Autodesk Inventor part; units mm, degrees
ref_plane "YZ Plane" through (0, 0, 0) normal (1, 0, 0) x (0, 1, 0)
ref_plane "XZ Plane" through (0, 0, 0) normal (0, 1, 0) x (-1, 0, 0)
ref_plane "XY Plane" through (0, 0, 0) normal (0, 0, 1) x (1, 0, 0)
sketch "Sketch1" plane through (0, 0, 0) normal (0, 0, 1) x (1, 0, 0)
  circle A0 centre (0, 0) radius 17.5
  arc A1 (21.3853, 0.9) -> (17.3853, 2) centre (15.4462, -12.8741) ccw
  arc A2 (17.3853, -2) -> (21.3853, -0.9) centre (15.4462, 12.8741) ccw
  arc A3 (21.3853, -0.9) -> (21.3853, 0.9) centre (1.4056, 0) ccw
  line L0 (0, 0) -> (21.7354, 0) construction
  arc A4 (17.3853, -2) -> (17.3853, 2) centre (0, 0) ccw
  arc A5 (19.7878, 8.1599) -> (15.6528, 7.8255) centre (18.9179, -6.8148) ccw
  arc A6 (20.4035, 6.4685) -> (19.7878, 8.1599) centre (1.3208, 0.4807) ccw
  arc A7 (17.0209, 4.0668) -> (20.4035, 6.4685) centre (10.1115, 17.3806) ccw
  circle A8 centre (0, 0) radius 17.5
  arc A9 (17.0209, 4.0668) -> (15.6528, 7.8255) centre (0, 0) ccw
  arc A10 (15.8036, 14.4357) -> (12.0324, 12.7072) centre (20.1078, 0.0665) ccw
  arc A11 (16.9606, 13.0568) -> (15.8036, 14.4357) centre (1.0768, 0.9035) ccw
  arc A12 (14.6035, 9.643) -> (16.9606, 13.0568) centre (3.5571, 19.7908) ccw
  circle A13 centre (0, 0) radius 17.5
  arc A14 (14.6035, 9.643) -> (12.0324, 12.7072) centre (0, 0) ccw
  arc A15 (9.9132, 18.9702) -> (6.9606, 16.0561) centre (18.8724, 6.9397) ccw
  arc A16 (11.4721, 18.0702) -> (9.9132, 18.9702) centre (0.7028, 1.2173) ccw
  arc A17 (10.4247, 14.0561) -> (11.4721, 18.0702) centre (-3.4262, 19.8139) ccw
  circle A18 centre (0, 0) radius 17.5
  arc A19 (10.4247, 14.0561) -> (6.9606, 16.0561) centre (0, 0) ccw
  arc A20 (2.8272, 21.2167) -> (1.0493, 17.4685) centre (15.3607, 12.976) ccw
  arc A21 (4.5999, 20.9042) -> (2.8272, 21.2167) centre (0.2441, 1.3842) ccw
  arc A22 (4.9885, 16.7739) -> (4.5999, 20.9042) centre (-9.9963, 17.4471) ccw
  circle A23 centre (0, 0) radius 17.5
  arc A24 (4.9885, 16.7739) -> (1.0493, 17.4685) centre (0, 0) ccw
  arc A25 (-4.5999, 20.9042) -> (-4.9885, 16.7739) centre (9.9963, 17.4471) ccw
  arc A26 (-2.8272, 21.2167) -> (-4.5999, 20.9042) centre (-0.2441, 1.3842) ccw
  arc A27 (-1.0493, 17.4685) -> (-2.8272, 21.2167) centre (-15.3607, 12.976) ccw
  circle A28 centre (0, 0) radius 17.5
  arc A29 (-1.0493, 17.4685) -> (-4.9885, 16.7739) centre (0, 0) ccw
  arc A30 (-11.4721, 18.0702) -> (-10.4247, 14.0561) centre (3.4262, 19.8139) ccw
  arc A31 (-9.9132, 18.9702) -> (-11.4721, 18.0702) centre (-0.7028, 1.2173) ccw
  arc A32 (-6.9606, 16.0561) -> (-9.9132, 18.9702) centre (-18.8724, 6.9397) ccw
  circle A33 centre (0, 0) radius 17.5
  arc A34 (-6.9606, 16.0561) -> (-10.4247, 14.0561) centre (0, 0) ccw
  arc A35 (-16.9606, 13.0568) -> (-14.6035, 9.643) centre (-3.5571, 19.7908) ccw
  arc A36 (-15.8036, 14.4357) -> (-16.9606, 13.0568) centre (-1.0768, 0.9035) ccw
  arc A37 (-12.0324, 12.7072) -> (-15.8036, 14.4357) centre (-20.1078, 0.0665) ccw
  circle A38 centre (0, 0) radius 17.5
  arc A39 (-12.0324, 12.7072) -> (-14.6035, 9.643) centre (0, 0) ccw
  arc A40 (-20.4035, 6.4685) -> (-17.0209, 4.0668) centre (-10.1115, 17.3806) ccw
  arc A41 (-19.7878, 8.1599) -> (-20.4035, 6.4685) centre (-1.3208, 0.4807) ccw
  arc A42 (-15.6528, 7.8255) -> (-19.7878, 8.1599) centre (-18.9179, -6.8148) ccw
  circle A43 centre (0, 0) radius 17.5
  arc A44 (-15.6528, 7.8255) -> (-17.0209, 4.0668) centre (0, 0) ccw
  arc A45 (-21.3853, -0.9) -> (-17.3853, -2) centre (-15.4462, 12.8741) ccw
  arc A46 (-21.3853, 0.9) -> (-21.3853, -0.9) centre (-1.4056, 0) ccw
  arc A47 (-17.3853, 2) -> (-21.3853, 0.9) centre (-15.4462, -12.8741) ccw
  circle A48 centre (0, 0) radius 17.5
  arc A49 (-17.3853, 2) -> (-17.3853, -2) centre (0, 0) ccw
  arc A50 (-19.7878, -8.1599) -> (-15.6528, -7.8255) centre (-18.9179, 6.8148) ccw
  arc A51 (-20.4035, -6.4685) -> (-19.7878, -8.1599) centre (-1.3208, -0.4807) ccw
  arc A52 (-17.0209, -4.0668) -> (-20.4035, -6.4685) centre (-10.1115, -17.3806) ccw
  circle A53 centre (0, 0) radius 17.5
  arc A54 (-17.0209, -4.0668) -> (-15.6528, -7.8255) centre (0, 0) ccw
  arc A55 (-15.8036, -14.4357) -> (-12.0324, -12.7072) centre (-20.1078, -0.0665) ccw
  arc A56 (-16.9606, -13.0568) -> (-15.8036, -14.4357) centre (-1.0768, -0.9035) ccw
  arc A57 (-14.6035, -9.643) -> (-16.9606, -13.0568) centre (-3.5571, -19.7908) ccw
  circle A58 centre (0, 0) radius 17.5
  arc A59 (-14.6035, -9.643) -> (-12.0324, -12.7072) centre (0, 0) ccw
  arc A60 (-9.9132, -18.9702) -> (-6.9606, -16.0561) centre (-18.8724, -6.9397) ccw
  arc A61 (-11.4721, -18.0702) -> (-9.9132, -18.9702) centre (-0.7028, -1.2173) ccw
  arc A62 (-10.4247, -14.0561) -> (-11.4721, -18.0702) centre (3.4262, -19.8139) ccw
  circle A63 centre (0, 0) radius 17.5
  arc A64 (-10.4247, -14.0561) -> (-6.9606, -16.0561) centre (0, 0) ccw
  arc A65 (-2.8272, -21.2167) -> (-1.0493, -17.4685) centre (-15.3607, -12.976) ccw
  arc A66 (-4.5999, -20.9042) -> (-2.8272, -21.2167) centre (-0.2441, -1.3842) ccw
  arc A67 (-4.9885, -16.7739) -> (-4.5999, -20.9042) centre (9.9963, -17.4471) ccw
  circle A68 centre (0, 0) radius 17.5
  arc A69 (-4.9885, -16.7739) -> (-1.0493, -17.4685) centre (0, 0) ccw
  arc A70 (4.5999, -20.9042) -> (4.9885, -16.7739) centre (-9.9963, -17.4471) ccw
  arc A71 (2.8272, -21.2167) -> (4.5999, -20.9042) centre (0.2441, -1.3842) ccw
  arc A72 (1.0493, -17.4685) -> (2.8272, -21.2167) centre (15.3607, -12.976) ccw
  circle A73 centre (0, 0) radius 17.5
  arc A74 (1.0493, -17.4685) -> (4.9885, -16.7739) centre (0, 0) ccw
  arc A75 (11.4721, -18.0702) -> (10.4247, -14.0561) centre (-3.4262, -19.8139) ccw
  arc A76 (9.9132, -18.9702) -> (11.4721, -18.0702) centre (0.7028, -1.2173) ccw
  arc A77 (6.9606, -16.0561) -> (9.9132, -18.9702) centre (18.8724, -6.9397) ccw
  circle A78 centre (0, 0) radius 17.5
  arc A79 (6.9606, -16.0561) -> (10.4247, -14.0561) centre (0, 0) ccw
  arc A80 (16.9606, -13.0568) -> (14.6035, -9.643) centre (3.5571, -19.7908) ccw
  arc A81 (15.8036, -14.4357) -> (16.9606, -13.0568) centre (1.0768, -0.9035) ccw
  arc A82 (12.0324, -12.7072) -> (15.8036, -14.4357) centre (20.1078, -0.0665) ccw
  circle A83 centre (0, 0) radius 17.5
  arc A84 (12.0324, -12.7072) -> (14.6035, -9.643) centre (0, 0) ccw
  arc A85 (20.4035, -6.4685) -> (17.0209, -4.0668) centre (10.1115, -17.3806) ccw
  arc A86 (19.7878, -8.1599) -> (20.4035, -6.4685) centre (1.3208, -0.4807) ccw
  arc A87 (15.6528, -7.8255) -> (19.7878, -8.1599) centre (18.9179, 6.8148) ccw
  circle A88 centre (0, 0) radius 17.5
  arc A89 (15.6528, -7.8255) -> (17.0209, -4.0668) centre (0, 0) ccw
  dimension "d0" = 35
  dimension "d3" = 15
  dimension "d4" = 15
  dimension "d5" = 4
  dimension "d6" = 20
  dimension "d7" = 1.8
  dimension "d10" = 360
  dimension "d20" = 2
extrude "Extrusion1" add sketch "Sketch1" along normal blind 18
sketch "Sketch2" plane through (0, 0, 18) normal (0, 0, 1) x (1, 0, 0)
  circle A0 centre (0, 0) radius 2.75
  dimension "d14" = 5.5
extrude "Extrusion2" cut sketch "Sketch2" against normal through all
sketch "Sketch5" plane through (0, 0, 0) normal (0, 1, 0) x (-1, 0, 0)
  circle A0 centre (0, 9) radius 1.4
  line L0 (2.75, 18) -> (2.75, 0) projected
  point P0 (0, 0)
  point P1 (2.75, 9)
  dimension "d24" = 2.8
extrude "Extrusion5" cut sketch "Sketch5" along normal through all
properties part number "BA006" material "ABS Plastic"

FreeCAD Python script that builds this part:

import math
import FreeCAD as App
import Part
import Sketcher

V = App.Vector
Q = App.Units.Quantity

doc = App.newDocument("Part")
body = doc.addObject("PartDesign::Body", "Body")

# Sketch on XY plane
sketch1 = doc.addObject("Sketcher::SketchObject", "Sketch")
body.addObject(sketch1)
sketch1.AttachmentSupport = (doc.XY_Plane, [""])
sketch1.MapMode = "FlatFace"
sketch1.addGeometry([
    Part.ArcOfCircle(Part.Circle(V(0, 0, 0), V(0, 0, 1), 17.5), math.radians(-13.43774), math.radians(-6.562442)),  # 0
    Part.ArcOfCircle(Part.Circle(V(15.4462, 12.8741, 0), V(0, 0, 1), 14.999965), math.radians(-82.57238), math.radians(-66.675318)),  # 1
    Part.ArcOfCircle(Part.Circle(V(1.4056, 0, 0), V(0, 0, 1), 19.99996), math.radians(-2.579186), math.radians(2.579186)),  # 2
    Part.ArcOfCircle(Part.Circle(V(15.4462, -12.8741, 0), V(0, 0, 1), 14.999958), math.radians(66.675318), math.radians(82.57238)),  # 3
    Part.ArcOfCircle(Part.Circle(V(0, 0, 0), V(0, 0, 1), 17.5), math.radians(6.562442), math.radians(13.43774)),  # 4
    Part.ArcOfCircle(Part.Circle(V(10.109586, 17.383735, 0), V(0, 0, 1), 15.003567), math.radians(-62.571282), math.radians(-46.677998)),  # 5
    Part.ArcOfCircle(Part.Circle(V(1.35565, 0.492503, 0), V(0, 0, 1), 19.963295), math.radians(17.418521), math.radians(22.58631)),  # 6
    Part.ArcOfCircle(Part.Circle(V(18.917918, -6.816358, 0), V(0, 0, 1), 15.0015), math.radians(86.675762), math.radians(102.571205)),  # 7
    Part.ArcOfCircle(Part.Circle(V(0, 0, 0), V(0, 0, 1), 17.5), math.radians(26.562416), math.radians(33.437627)),  # 8
    Part.ArcOfCircle(Part.Circle(V(3.5571, 19.7908, 0), V(0, 0, 1), 15.000027), math.radians(-42.572205), math.radians(-26.675232)),  # 9
    Part.ArcOfCircle(Part.Circle(V(1.064542, 0.893676, 0), V(0, 0, 1), 20.01565), math.radians(37.42199), math.radians(42.576328)),  # 10
    Part.ArcOfCircle(Part.Circle(V(20.107392, 0.067581, 0), V(0, 0, 1), 14.998849), math.radians(106.674938), math.radians(122.573029)),  # 11
    Part.ArcOfCircle(Part.Circle(V(0, 0, 0), V(0, 0, 1), 17.5), math.radians(46.562418), math.radians(53.437537)),  # 12
    Part.ArcOfCircle(Part.Circle(V(-3.4262, 19.8139, 0), V(0, 0, 1), 14.99999), math.radians(-22.572589), math.radians(-6.675539)),  # 13
    Part.ArcOfCircle(Part.Circle(V(0.710066, 1.229255, 0), V(0, 0, 1), 19.985965), math.radians(57.419803), math.radians(62.581925)),  # 14
    Part.ArcOfCircle(Part.Circle(V(18.8724, 6.9397, 0), V(0, 0, 1), 15.000006), math.radians(126.675321), math.radians(142.572261)),  # 15
    Part.ArcOfCircle(Part.Circle(V(0, 0, 0), V(0, 0, 1), 17.5), math.radians(66.562425), math.radians(73.437704)),  # 16
    Part.ArcOfCircle(Part.Circle(V(-10.001805, 17.446965, 0), V(0, 0, 1), 15.005408), math.radians(-2.570856), math.radians(13.320579)),  # 17
    Part.ArcOfCircle(Part.Circle(V(0.251171, 1.41962, 0), V(0, 0, 1), 19.963975), math.radians(77.418459), math.radians(82.586233)),  # 18
    Part.ArcOfCircle(Part.Circle(V(15.362167, 12.975175, 0), V(0, 0, 1), 15.001604), math.radians(146.675769), math.radians(162.571047)),  # 19
    Part.ArcOfCircle(Part.Circle(V(0, 0, 0), V(0, 0, 1), 17.5), math.radians(86.562481), math.radians(93.437519)),  # 20
    Part.ArcOfCircle(Part.Circle(V(-15.359134, 12.976614, 0), V(0, 0, 1), 14.998279), math.radians(17.42718), math.radians(33.326004)),  # 21
    Part.ArcOfCircle(Part.Circle(V(-0.23861, 1.348368, 0), V(0, 0, 1), 20.036252), math.radians(97.423094), math.radians(102.572214)),  # 22
    Part.ArcOfCircle(Part.Circle(V(9.99087, 17.447994, 0), V(0, 0, 1), 14.99453), math.radians(166.67362), math.radians(182.576657)),  # 23
    Part.ArcOfCircle(Part.Circle(V(0, 0, 0), V(0, 0, 1), 17.5), math.radians(106.562296), math.radians(113.437575)),  # 24
    Part.ArcOfCircle(Part.Circle(V(-18.8724, 6.9397, 0), V(0, 0, 1), 14.999991), math.radians(37.427739), math.radians(53.324679)),  # 25
    Part.ArcOfCircle(Part.Circle(V(-0.69607, 1.205013, 0), V(0, 0, 1), 20.013929), math.radians(117.421684), math.radians(122.576588)),  # 26
    Part.ArcOfCircle(Part.Circle(V(3.4262, 19.8139, 0), V(0, 0, 1), 14.999994), math.radians(-173.324461), math.radians(-157.427411)),  # 27
    Part.ArcOfCircle(Part.Circle(V(0, 0, 0), V(0, 0, 1), 17.5), math.radians(126.562463), math.radians(133.437582)),  # 28
    Part.ArcOfCircle(Part.Circle(V(-20.108353, 0.065485, 0), V(0, 0, 1), 15.001132), math.radians(57.428189), math.radians(73.323844)),  # 29
    Part.ArcOfCircle(Part.Circle(V(-1.088585, 0.91385, 0), V(0, 0, 1), 19.984297), math.radians(137.419626), math.radians(142.582056)),  # 30
    Part.ArcOfCircle(Part.Circle(V(-3.5571, 19.7908, 0), V(0, 0, 1), 15.000019), math.radians(-153.324768), math.radians(-137.427795)),  # 31
    Part.ArcOfCircle(Part.Circle(V(0, 0, 0), V(0, 0, 1), 17.5), math.radians(146.562373), math.radians(153.437584)),  # 32
    Part.ArcOfCircle(Part.Circle(V(-18.917667, -6.81326, 0), V(0, 0, 1), 14.998421), math.radians(77.427153), math.radians(93.32588)),  # 33
    Part.ArcOfCircle(Part.Circle(V(-1.28639, 0.467291, 0), V(0, 0, 1), 20.036926), math.radians(157.423192), math.radians(162.571978)),  # 34
    Part.ArcOfCircle(Part.Circle(V(-10.113828, 17.377761, 0), V(0, 0, 1), 14.996311), math.radians(-133.325872), math.radians(-117.424848)),  # 35
    Part.ArcOfCircle(Part.Circle(V(0, 0, 0), V(0, 0, 1), 17.5), math.radians(166.56226), math.radians(173.437558)),  # 36
    Part.ArcOfCircle(Part.Circle(V(-15.4462, -12.8741, 0), V(0, 0, 1), 14.999965), math.radians(97.42762), math.radians(113.324682)),  # 37
    Part.ArcOfCircle(Part.Circle(V(-1.4056, 0, 0), V(0, 0, 1), 19.99996), math.radians(177.420814), math.radians(182.579186)),  # 38
    Part.ArcOfCircle(Part.Circle(V(-15.4462, 12.8741, 0), V(0, 0, 1), 14.999958), math.radians(-113.324682), math.radians(-97.42762)),  # 39
    Part.ArcOfCircle(Part.Circle(V(0, 0, 0), V(0, 0, 1), 17.5), math.radians(-173.437558), math.radians(-166.56226)),  # 40
    Part.ArcOfCircle(Part.Circle(V(-10.109586, -17.383735, 0), V(0, 0, 1), 15.003567), math.radians(117.428718), math.radians(133.322002)),  # 41
    Part.ArcOfCircle(Part.Circle(V(-1.35565, -0.492503, 0), V(0, 0, 1), 19.963295), math.radians(-162.581479), math.radians(-157.41369)),  # 42
    Part.ArcOfCircle(Part.Circle(V(-18.917918, 6.816358, 0), V(0, 0, 1), 15.0015), math.radians(-93.324238), math.radians(-77.428795)),  # 43
    Part.ArcOfCircle(Part.Circle(V(0, 0, 0), V(0, 0, 1), 17.5), math.radians(-153.437584), math.radians(-146.562373)),  # 44
    Part.ArcOfCircle(Part.Circle(V(-3.5571, -19.7908, 0), V(0, 0, 1), 15.000027), math.radians(137.427795), math.radians(153.324768)),  # 45
    Part.ArcOfCircle(Part.Circle(V(-1.064542, -0.893676, 0), V(0, 0, 1), 20.01565), math.radians(-142.57801), math.radians(-137.423672)),  # 46
    Part.ArcOfCircle(Part.Circle(V(-20.107392, -0.067581, 0), V(0, 0, 1), 14.998849), math.radians(-73.325062), math.radians(-57.426971)),  # 47
    Part.ArcOfCircle(Part.Circle(V(0, 0, 0), V(0, 0, 1), 17.5), math.radians(-133.437582), math.radians(-126.562463)),  # 48
    Part.ArcOfCircle(Part.Circle(V(3.4262, -19.8139, 0), V(0, 0, 1), 14.99999), math.radians(157.427411), math.radians(173.324461)),  # 49
    Part.ArcOfCircle(Part.Circle(V(-0.710066, -1.229255, 0), V(0, 0, 1), 19.985965), math.radians(-122.580197), math.radians(-117.418075)),  # 50
    Part.ArcOfCircle(Part.Circle(V(-18.8724, -6.9397, 0), V(0, 0, 1), 15.000006), math.radians(-53.324679), math.radians(-37.427739)),  # 51
    Part.ArcOfCircle(Part.Circle(V(0, 0, 0), V(0, 0, 1), 17.5), math.radians(-113.437575), math.radians(-106.562296)),  # 52
    Part.ArcOfCircle(Part.Circle(V(10.001805, -17.446965, 0), V(0, 0, 1), 15.005408), math.radians(177.429144), math.radians(193.320579)),  # 53
    Part.ArcOfCircle(Part.Circle(V(-0.251171, -1.41962, 0), V(0, 0, 1), 19.963975), math.radians(-102.581541), math.radians(-97.413767)),  # 54
    Part.ArcOfCircle(Part.Circle(V(-15.362167, -12.975175, 0), V(0, 0, 1), 15.001604), math.radians(-33.324231), math.radians(-17.428953)),  # 55
    Part.ArcOfCircle(Part.Circle(V(0, 0, 0), V(0, 0, 1), 17.5), math.radians(-93.437519), math.radians(-86.562481)),  # 56
    Part.ArcOfCircle(Part.Circle(V(15.359134, -12.976614, 0), V(0, 0, 1), 14.998279), math.radians(-162.57282), math.radians(-146.673996)),  # 57
    Part.ArcOfCircle(Part.Circle(V(0.23861, -1.348368, 0), V(0, 0, 1), 20.036252), math.radians(-82.576906), math.radians(-77.427786)),  # 58
    Part.ArcOfCircle(Part.Circle(V(-9.99087, -17.447994, 0), V(0, 0, 1), 14.99453), math.radians(-13.32638), math.radians(2.576657)),  # 59
    Part.ArcOfCircle(Part.Circle(V(0, 0, 0), V(0, 0, 1), 17.5), math.radians(-73.437704), math.radians(-66.562425)),  # 60
    Part.ArcOfCircle(Part.Circle(V(18.8724, -6.9397, 0), V(0, 0, 1), 14.999991), math.radians(-142.572261), math.radians(-126.675321)),  # 61
    Part.ArcOfCircle(Part.Circle(V(0.69607, -1.205013, 0), V(0, 0, 1), 20.013929), math.radians(-62.578316), math.radians(-57.423412)),  # 62
    Part.ArcOfCircle(Part.Circle(V(-3.4262, -19.8139, 0), V(0, 0, 1), 14.999994), math.radians(6.675539), math.radians(22.572589)),  # 63
    Part.ArcOfCircle(Part.Circle(V(0, 0, 0), V(0, 0, 1), 17.5), math.radians(-53.437537), math.radians(-46.562418)),  # 64
    Part.ArcOfCircle(Part.Circle(V(20.108353, -0.065485, 0), V(0, 0, 1), 15.001132), math.radians(-122.571811), math.radians(-106.676156)),  # 65
    Part.ArcOfCircle(Part.Circle(V(1.088585, -0.91385, 0), V(0, 0, 1), 19.984297), math.radians(-42.580374), math.radians(-37.417944)),  # 66
    Part.ArcOfCircle(Part.Circle(V(3.5571, -19.7908, 0), V(0, 0, 1), 15.000019), math.radians(26.675232), math.radians(42.572205)),  # 67
    Part.ArcOfCircle(Part.Circle(V(0, 0, 0), V(0, 0, 1), 17.5), math.radians(-33.437627), math.radians(-26.562416)),  # 68
    Part.ArcOfCircle(Part.Circle(V(18.917667, 6.81326, 0), V(0, 0, 1), 14.998421), math.radians(-102.572847), math.radians(-86.67412)),  # 69
    Part.ArcOfCircle(Part.Circle(V(1.28639, -0.467291, 0), V(0, 0, 1), 20.036926), math.radians(-22.576808), math.radians(-17.428022)),  # 70
    Part.ArcOfCircle(Part.Circle(V(10.113828, -17.377761, 0), V(0, 0, 1), 14.996311), math.radians(46.674128), math.radians(62.575152)),  # 71
], False)
sketch1.addConstraint([
    Sketcher.Constraint("Coincident", 0, 2, 1, 1),
    Sketcher.Constraint("Coincident", 1, 2, 2, 1),
    Sketcher.Constraint("Coincident", 2, 2, 3, 1),
    Sketcher.Constraint("Coincident", 3, 2, 4, 1),
    Sketcher.Constraint("Coincident", 4, 2, 5, 1),
    Sketcher.Constraint("Coincident", 5, 2, 6, 1),
    Sketcher.Constraint("Coincident", 6, 2, 7, 1),
    Sketcher.Constraint("Coincident", 7, 2, 8, 1),
    Sketcher.Constraint("Coincident", 8, 2, 9, 1),
    Sketcher.Constraint("Coincident", 9, 2, 10, 1),
    Sketcher.Constraint("Coincident", 10, 2, 11, 1),
    Sketcher.Constraint("Coincident", 11, 2, 12, 1),
    Sketcher.Constraint("Coincident", 12, 2, 13, 1),
    Sketcher.Constraint("Coincident", 13, 2, 14, 1),
    Sketcher.Constraint("Coincident", 14, 2, 15, 1),
    Sketcher.Constraint("Coincident", 15, 2, 16, 1),
    Sketcher.Constraint("Coincident", 16, 2, 17, 1),
    Sketcher.Constraint("Coincident", 17, 2, 18, 1),
    Sketcher.Constraint("Coincident", 18, 2, 19, 1),
    Sketcher.Constraint("Coincident", 19, 2, 20, 1),
    Sketcher.Constraint("Coincident", 20, 2, 21, 1),
    Sketcher.Constraint("Coincident", 21, 2, 22, 1),
    Sketcher.Constraint("Coincident", 22, 2, 23, 1),
    Sketcher.Constraint("Coincident", 23, 2, 24, 1),
    Sketcher.Constraint("Coincident", 24, 2, 25, 1),
    Sketcher.Constraint("Coincident", 25, 2, 26, 1),
    Sketcher.Constraint("Coincident", 26, 2, 27, 1),
    Sketcher.Constraint("Coincident", 27, 2, 28, 1),
    Sketcher.Constraint("Coincident", 28, 2, 29, 1),
    Sketcher.Constraint("Coincident", 29, 2, 30, 1),
    Sketcher.Constraint("Coincident", 30, 2, 31, 1),
    Sketcher.Constraint("Coincident", 31, 2, 32, 1),
    Sketcher.Constraint("Coincident", 32, 2, 33, 1),
    Sketcher.Constraint("Coincident", 33, 2, 34, 1),
    Sketcher.Constraint("Coincident", 34, 2, 35, 1),
    Sketcher.Constraint("Coincident", 35, 2, 36, 1),
    Sketcher.Constraint("Coincident", 36, 2, 37, 1),
    Sketcher.Constraint("Coincident", 37, 2, 38, 1),
    Sketcher.Constraint("Coincident", 38, 2, 39, 1),
    Sketcher.Constraint("Coincident", 39, 2, 40, 1),
    Sketcher.Constraint("Coincident", 40, 2, 41, 1),
    Sketcher.Constraint("Coincident", 41, 2, 42, 1),
    Sketcher.Constraint("Coincident", 42, 2, 43, 1),
    Sketcher.Constraint("Coincident", 43, 2, 44, 1),
    Sketcher.Constraint("Coincident", 44, 2, 45, 1),
    Sketcher.Constraint("Coincident", 45, 2, 46, 1),
    Sketcher.Constraint("Coincident", 46, 2, 47, 1),
    Sketcher.Constraint("Coincident", 47, 2, 48, 1),
    Sketcher.Constraint("Coincident", 48, 2, 49, 1),
    Sketcher.Constraint("Coincident", 49, 2, 50, 1),
    Sketcher.Constraint("Coincident", 50, 2, 51, 1),
    Sketcher.Constraint("Coincident", 51, 2, 52, 1),
    Sketcher.Constraint("Coincident", 52, 2, 53, 1),
    Sketcher.Constraint("Coincident", 53, 2, 54, 1),
    Sketcher.Constraint("Coincident", 54, 2, 55, 1),
    Sketcher.Constraint("Coincident", 55, 2, 56, 1),
    Sketcher.Constraint("Coincident", 56, 2, 57, 1),
    Sketcher.Constraint("Coincident", 57, 2, 58, 1),
    Sketcher.Constraint("Coincident", 58, 2, 59, 1),
    Sketcher.Constraint("Coincident", 59, 2, 60, 1),
    Sketcher.Constraint("Coincident", 60, 2, 61, 1),
    Sketcher.Constraint("Coincident", 61, 2, 62, 1),
    Sketcher.Constraint("Coincident", 62, 2, 63, 1),
    Sketcher.Constraint("Coincident", 63, 2, 64, 1),
    Sketcher.Constraint("Coincident", 64, 2, 65, 1),
    Sketcher.Constraint("Coincident", 65, 2, 66, 1),
    Sketcher.Constraint("Coincident", 66, 2, 67, 1),
    Sketcher.Constraint("Coincident", 67, 2, 68, 1),
    Sketcher.Constraint("Coincident", 68, 2, 69, 1),
    Sketcher.Constraint("Coincident", 69, 2, 70, 1),
    Sketcher.Constraint("Coincident", 70, 2, 71, 1),
    Sketcher.Constraint("Coincident", 71, 2, 0, 1),
    Sketcher.Constraint("Coincident", 0, 3, -1, 1),
    Sketcher.Constraint("Coincident", 4, 3, -1, 1),
    Sketcher.Constraint("Coincident", 8, 3, -1, 1),
    Sketcher.Constraint("Coincident", 12, 3, -1, 1),
    Sketcher.Constraint("Coincident", 16, 3, -1, 1),
    Sketcher.Constraint("Coincident", 20, 3, -1, 1),
    Sketcher.Constraint("Coincident", 24, 3, -1, 1),
    Sketcher.Constraint("Coincident", 28, 3, -1, 1),
    Sketcher.Constraint("Coincident", 32, 3, -1, 1),
    Sketcher.Constraint("Coincident", 36, 3, -1, 1),
    Sketcher.Constraint("Coincident", 40, 3, -1, 1),
    Sketcher.Constraint("Coincident", 44, 3, -1, 1),
    Sketcher.Constraint("Coincident", 48, 3, -1, 1),
    Sketcher.Constraint("Coincident", 52, 3, -1, 1),
    Sketcher.Constraint("Coincident", 56, 3, -1, 1),
    Sketcher.Constraint("Coincident", 60, 3, -1, 1),
    Sketcher.Constraint("Coincident", 64, 3, -1, 1),
    Sketcher.Constraint("Coincident", 68, 3, -1, 1),
    Sketcher.Constraint("Equal", 1, 3),
    Sketcher.Constraint("Equal", 0, 4),
    Sketcher.Constraint("Equal", 4, 8),
    Sketcher.Constraint("Equal", 3, 9),
    Sketcher.Constraint("Equal", 8, 12),
    Sketcher.Constraint("Equal", 9, 13),
    Sketcher.Constraint("Equal", 13, 15),
    Sketcher.Constraint("Equal", 12, 16),
    Sketcher.Constraint("Equal", 7, 19),
    Sketcher.Constraint("Equal", 16, 20),
    Sketcher.Constraint("Equal", 20, 24),
    Sketcher.Constraint("Equal", 15, 25),
    Sketcher.Constraint("Equal", 25, 27),
    Sketcher.Constraint("Equal", 24, 28),
    Sketcher.Constraint("Equal", 27, 31),
    Sketcher.Constraint("Equal", 28, 32),
    Sketcher.Constraint("Equal", 21, 33),
    Sketcher.Constraint("Equal", 32, 36),
    Sketcher.Constraint("Equal", 31, 37),
    Sketcher.Constraint("Equal", 2, 38),
    Sketcher.Constraint("Equal", 37, 39),
    Sketcher.Constraint("Equal", 36, 40),
    Sketcher.Constraint("Equal", 5, 41),
    Sketcher.Constraint("Equal", 6, 42),
    Sketcher.Constraint("Equal", 19, 43),
    Sketcher.Constraint("Equal", 40, 44),
    Sketcher.Constraint("Equal", 39, 45),
    Sketcher.Constraint("Equal", 10, 46),
    Sketcher.Constraint("Equal", 11, 47),
    Sketcher.Constraint("Equal", 44, 48),
    Sketcher.Constraint("Equal", 45, 49),
    Sketcher.Constraint("Equal", 14, 50),
    Sketcher.Constraint("Equal", 49, 51),
    Sketcher.Constraint("Equal", 48, 52),
    Sketcher.Constraint("Equal", 17, 53),
    Sketcher.Constraint("Equal", 18, 54),
    Sketcher.Constraint("Equal", 43, 55),
    Sketcher.Constraint("Equal", 52, 56),
    Sketcher.Constraint("Equal", 33, 57),
    Sketcher.Constraint("Equal", 22, 58),
    Sketcher.Constraint("Equal", 23, 59),
    Sketcher.Constraint("Equal", 56, 60),
    Sketcher.Constraint("Equal", 51, 61),
    Sketcher.Constraint("Equal", 26, 62),
    Sketcher.Constraint("Equal", 61, 63),
    Sketcher.Constraint("Equal", 60, 64),
    Sketcher.Constraint("Equal", 29, 65),
    Sketcher.Constraint("Equal", 30, 66),
    Sketcher.Constraint("Equal", 63, 67),
    Sketcher.Constraint("Equal", 64, 68),
    Sketcher.Constraint("Equal", 57, 69),
    Sketcher.Constraint("Equal", 34, 70),
    Sketcher.Constraint("Equal", 35, 71),
    Sketcher.Constraint("Symmetric", 1, 3, 37, 3, -1, 1),
    Sketcher.Constraint("Symmetric", 2, 3, 38, 3, -1, 1),
    Sketcher.Constraint("Symmetric", 3, 3, 39, 3, -1, 1),
    Sketcher.Constraint("Symmetric", 5, 3, 41, 3, -1, 1),
    Sketcher.Constraint("Symmetric", 6, 3, 42, 3, -1, 1),
    Sketcher.Constraint("Symmetric", 7, 3, 43, 3, -1, 1),
    Sketcher.Constraint("Symmetric", 9, 3, 45, 3, -1, 1),
    Sketcher.Constraint("Symmetric", 10, 3, 46, 3, -1, 1),
    Sketcher.Constraint("Symmetric", 11, 3, 47, 3, -1, 1),
    Sketcher.Constraint("Symmetric", 13, 3, 49, 3, -1, 1),
    Sketcher.Constraint("Symmetric", 14, 3, 50, 3, -1, 1),
    Sketcher.Constraint("Symmetric", 15, 3, 51, 3, -1, 1),
    Sketcher.Constraint("Symmetric", 17, 3, 53, 3, -1, 1),
    Sketcher.Constraint("Symmetric", 18, 3, 54, 3, -1, 1),
    Sketcher.Constraint("Symmetric", 19, 3, 55, 3, -1, 1),
    Sketcher.Constraint("Symmetric", 21, 3, 57, 3, -1, 1),
    Sketcher.Constraint("Symmetric", 22, 3, 58, 3, -1, 1),
    Sketcher.Constraint("Symmetric", 23, 3, 59, 3, -1, 1),
    Sketcher.Constraint("Symmetric", 25, 3, 61, 3, -1, 1),
    Sketcher.Constraint("Symmetric", 26, 3, 62, 3, -1, 1),
    Sketcher.Constraint("Symmetric", 27, 3, 63, 3, -1, 1),
    Sketcher.Constraint("Symmetric", 29, 3, 65, 3, -1, 1),
    Sketcher.Constraint("Symmetric", 30, 3, 66, 3, -1, 1),
    Sketcher.Constraint("Symmetric", 31, 3, 67, 3, -1, 1),
    Sketcher.Constraint("Symmetric", 33, 3, 69, 3, -1, 1),
    Sketcher.Constraint("Symmetric", 34, 3, 70, 3, -1, 1),
    Sketcher.Constraint("Symmetric", 35, 3, 71, 3, -1, 1),
    Sketcher.Constraint("Symmetric", 15, 3, 25, 3, -2),
    Sketcher.Constraint("Symmetric", 13, 3, 27, 3, -2),
    Sketcher.Constraint("Symmetric", 9, 3, 31, 3, -2),
    Sketcher.Constraint("Symmetric", 3, 3, 37, 3, -2),
    Sketcher.Constraint("Symmetric", 18, 2, 21, 2, -2),
    Sketcher.Constraint("Symmetric", 17, 2, 22, 2, -2),
    Sketcher.Constraint("Symmetric", 10, 2, 29, 2, -2),
    Sketcher.Constraint("Symmetric", 6, 2, 33, 2, -2),
    Sketcher.Constraint("Symmetric", 5, 2, 34, 2, -2),
    Sketcher.Constraint("PointOnObject", 2, 3, -1),
    Sketcher.Constraint("Horizontal", 16, 2, 23, 2),
    Sketcher.Constraint("Horizontal", 14, 2, 25, 2),
    Sketcher.Constraint("Horizontal", 13, 2, 26, 2),
    Sketcher.Constraint("Horizontal", 11, 2, 28, 2),
    Sketcher.Constraint("Horizontal", 9, 2, 30, 2),
    Sketcher.Constraint("Horizontal", 7, 2, 32, 2),
    Sketcher.Constraint("Horizontal", 4, 2, 35, 2),
    Sketcher.Constraint("Vertical", 20, 2, 55, 2),
    Sketcher.Constraint("Radius", 1, Q("15 mm")),
    Sketcher.Constraint("Radius", 2, Q("20 mm")),
    Sketcher.Constraint("Radius", 0, Q("17.5 mm")),
    Sketcher.Constraint("DistanceY", 0, 2, -1, 1, Q("2 mm")),
    Sketcher.Constraint("Radius", 14, Q("19.986 mm")),
    Sketcher.Constraint("Radius", 18, Q("19.964 mm")),
    Sketcher.Constraint("Radius", 26, Q("20.014 mm")),
    Sketcher.Constraint("Radius", 34, Q("20.037 mm")),
    Sketcher.Constraint("DistanceY", 1, 2, -1, 1, Q("0.9 mm")),
    Sketcher.Constraint("DistanceX", -1, 1, 17, 2, Q("4.6 mm")),
    Sketcher.Constraint("Radius", 5, Q("15.0036 mm")),
    Sketcher.Constraint("Radius", 6, Q("19.9633 mm")),
    Sketcher.Constraint("Radius", 7, Q("15.0015 mm")),
    Sketcher.Constraint("Radius", 10, Q("20.0156 mm")),
    Sketcher.Constraint("Radius", 11, Q("14.9988 mm")),
    Sketcher.Constraint("Radius", 17, Q("15.0054 mm")),
    Sketcher.Constraint("Radius", 21, Q("14.9983 mm")),
    Sketcher.Constraint("Radius", 22, Q("20.0363 mm")),
    Sketcher.Constraint("Radius", 23, Q("14.9945 mm")),
    Sketcher.Constraint("Radius", 29, Q("15.0011 mm")),
    Sketcher.Constraint("Radius", 30, Q("19.9843 mm")),
    Sketcher.Constraint("Radius", 35, Q("14.9963 mm")),
    Sketcher.Constraint("DistanceX", -1, 1, 14, 3, Q("0.71 mm")),
    Sketcher.Constraint("DistanceY", -1, 1, 6, 2, Q("8.16 mm")),
    Sketcher.Constraint("DistanceY", -1, 1, 1, 3, Q("12.874 mm")),
    Sketcher.Constraint("DistanceX", -1, 1, 7, 3, Q("18.918 mm")),
    Sketcher.Constraint("DistanceX", -1, 1, 9, 3, Q("3.557 mm")),
    Sketcher.Constraint("DistanceY", -1, 1, 13, 3, Q("19.814 mm")),
    Sketcher.Constraint("DistanceY", -1, 1, 17, 3, Q("17.447 mm")),
    Sketcher.Constraint("DistanceY", -1, 1, 26, 3, Q("1.205 mm")),
    Sketcher.Constraint("DistanceX", -1, 1, 4, 2, Q("17.021 mm")),
    Sketcher.Constraint("DistanceY", -1, 1, 8, 2, Q("9.643 mm")),
    Sketcher.Constraint("DistanceX", -1, 1, 13, 2, Q("11.472 mm")),
    Sketcher.Constraint("DistanceY", -1, 1, 15, 2, Q("16.056 mm")),
    Sketcher.Constraint("DistanceY", -1, 1, 16, 2, Q("16.774 mm")),
    Sketcher.Constraint("DistanceX", -1, 1, 5, 3, Q("10.1096 mm")),
    Sketcher.Constraint("DistanceX", -1, 1, 6, 3, Q("1.3556 mm")),
    Sketcher.Constraint("DistanceY", -1, 1, 6, 3, Q("0.4925 mm")),
    Sketcher.Constraint("DistanceX", -1, 1, 10, 3, Q("1.0645 mm")),
    Sketcher.Constraint("DistanceY", -1, 1, 10, 3, Q("0.8937 mm")),
    Sketcher.Constraint("DistanceX", -1, 1, 11, 3, Q("20.1074 mm")),
    Sketcher.Constraint("DistanceY", -1, 1, 11, 3, Q("0.0676 mm")),
    Sketcher.Constraint("DistanceX", -1, 1, 15, 3, Q("18.8724 mm")),
    Sketcher.Constraint("DistanceX", -1, 1, 18, 3, Q("0.2512 mm")),
    Sketcher.Constraint("DistanceX", -1, 1, 19, 3, Q("15.3622 mm")),
    Sketcher.Constraint("DistanceY", -1, 1, 19, 3, Q("12.9752 mm")),
])
pad1 = doc.addObject("PartDesign::Pad", "Pad")
body.addObject(pad1)
pad1.Profile = sketch1
pad1.Length = 18

# Sketch on XY plane
sketch2 = doc.addObject("Sketcher::SketchObject", "Sketch001")
body.addObject(sketch2)
sketch2.AttachmentSupport = (doc.XY_Plane, [""])
sketch2.MapMode = "FlatFace"
sketch2.AttachmentOffset = App.Placement(V(0, 0, 18), App.Rotation())
sketch2.addGeometry(Part.Circle(V(0, 0, 0), V(0, 0, 1), 2.75), False)
sketch2.addConstraint([
    Sketcher.Constraint("Coincident", 0, 3, -1, 1),
    Sketcher.Constraint("Diameter", 0, Q("5.5 mm")),
])
pocket1 = doc.addObject("PartDesign::Pocket", "Pocket")
body.addObject(pocket1)
pocket1.Profile = sketch2
pocket1.Type = "ThroughAll"

# Sketch on XZ plane
sketch3 = doc.addObject("Sketcher::SketchObject", "Sketch002")
body.addObject(sketch3)
sketch3.AttachmentSupport = (doc.XZ_Plane, [""])
sketch3.MapMode = "FlatFace"
sketch3.addGeometry(Part.Circle(V(0, 9, 0), V(0, 0, 1), 1.4), False)
sketch3.addConstraint([
    Sketcher.Constraint("PointOnObject", 0, 3, -2),
    Sketcher.Constraint("Diameter", 0, Q("2.8 mm")),
    Sketcher.Constraint("DistanceY", -1, 1, 0, 3, Q("9 mm")),
])
pocket2 = doc.addObject("PartDesign::Pocket", "Pocket001")
body.addObject(pocket2)
pocket2.Profile = sketch3
pocket2.Type = "ThroughAll"

doc.recompute()
